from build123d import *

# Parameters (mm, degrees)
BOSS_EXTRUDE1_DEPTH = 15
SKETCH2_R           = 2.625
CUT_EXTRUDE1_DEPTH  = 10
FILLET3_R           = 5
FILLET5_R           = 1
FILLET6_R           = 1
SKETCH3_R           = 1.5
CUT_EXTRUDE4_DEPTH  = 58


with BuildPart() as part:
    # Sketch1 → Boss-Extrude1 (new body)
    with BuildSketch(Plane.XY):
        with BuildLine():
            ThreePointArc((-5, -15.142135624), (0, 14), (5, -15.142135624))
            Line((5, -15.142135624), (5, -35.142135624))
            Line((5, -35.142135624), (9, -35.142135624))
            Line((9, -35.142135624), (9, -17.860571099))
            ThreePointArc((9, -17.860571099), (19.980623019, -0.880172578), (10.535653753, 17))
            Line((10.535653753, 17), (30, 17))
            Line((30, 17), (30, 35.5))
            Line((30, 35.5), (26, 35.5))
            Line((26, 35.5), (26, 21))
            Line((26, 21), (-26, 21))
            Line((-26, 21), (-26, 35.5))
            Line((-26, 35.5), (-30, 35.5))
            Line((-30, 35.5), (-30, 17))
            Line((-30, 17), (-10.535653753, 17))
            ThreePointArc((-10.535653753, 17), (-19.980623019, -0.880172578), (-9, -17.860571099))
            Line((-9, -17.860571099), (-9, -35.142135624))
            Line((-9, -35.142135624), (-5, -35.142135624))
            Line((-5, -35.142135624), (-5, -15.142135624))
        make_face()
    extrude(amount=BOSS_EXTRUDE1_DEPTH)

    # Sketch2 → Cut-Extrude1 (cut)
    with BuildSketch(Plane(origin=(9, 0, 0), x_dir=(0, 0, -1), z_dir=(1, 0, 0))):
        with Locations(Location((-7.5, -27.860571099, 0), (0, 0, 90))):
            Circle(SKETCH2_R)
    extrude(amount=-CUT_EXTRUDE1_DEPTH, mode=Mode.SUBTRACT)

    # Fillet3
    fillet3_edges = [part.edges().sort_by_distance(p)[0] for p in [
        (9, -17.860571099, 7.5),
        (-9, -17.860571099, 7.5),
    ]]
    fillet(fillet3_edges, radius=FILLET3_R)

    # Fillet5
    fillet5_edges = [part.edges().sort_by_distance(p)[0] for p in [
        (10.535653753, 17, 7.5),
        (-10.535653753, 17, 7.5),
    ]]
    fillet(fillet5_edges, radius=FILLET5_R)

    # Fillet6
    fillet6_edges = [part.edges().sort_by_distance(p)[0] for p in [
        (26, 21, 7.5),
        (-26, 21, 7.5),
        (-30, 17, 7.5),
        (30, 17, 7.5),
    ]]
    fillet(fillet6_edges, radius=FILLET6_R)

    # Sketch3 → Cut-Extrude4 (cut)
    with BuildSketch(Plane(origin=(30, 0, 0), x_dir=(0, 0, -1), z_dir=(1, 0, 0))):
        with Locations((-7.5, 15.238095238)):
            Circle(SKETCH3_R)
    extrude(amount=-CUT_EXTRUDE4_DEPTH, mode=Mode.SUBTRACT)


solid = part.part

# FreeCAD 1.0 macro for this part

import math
import FreeCAD as App
import Part
import Sketcher

V = App.Vector


def edges_at(feature, points):
    """Names of the edges that pass closest to the given points."""
    edges = feature.Shape.Edges
    near = lambda p: min(range(len(edges)), key=lambda i: edges[i].distToShape(Part.Vertex(*p))[0])
    return sorted({f"Edge{near(p) + 1}" for p in points})

doc = App.newDocument("Part")
body = doc.addObject("PartDesign::Body", "Body")

sketch1 = doc.addObject("Sketcher::SketchObject", "Sketch")
body.addObject(sketch1)
sketch1.AttachmentSupport = (doc.XY_Plane, [""])
sketch1.MapMode = "FlatFace"
sketch1.addGeometry([
    Part.ArcOfCircle(Part.Circle(V(0, -1, 0), V(0, 0, 1), 15), math.radians(-70.528779), math.radians(250.528779)),
    Part.LineSegment(V(5, -15.142136, 0), V(5, -35.142136, 0)),
    Part.LineSegment(V(5, -35.142136, 0), V(9, -35.142136, 0)),
    Part.LineSegment(V(9, -35.142136, 0), V(9, -17.860571, 0)),
    Part.ArcOfCircle(Part.Circle(V(0, 0, 0), V(0, 0, 1), 20), math.radians(-63.256316), math.radians(58.211669)),
    Part.LineSegment(V(10.535654, 17, 0), V(30, 17, 0)),
    Part.LineSegment(V(30, 17, 0), V(30, 35.5, 0)),
    Part.LineSegment(V(30, 35.5, 0), V(26, 35.5, 0)),
    Part.LineSegment(V(26, 35.5, 0), V(26, 21, 0)),
    Part.LineSegment(V(26, 21, 0), V(-26, 21, 0)),
    Part.LineSegment(V(-26, 21, 0), V(-26, 35.5, 0)),
    Part.LineSegment(V(-26, 35.5, 0), V(-30, 35.5, 0)),
    Part.LineSegment(V(-30, 35.5, 0), V(-30, 17, 0)),
    Part.LineSegment(V(-30, 17, 0), V(-10.535654, 17, 0)),
    Part.ArcOfCircle(Part.Circle(V(0, 0, 0), V(0, 0, 1), 20), math.radians(121.788331), math.radians(243.256316)),
    Part.LineSegment(V(-9, -17.860571, 0), V(-9, -35.142136, 0)),
    Part.LineSegment(V(-9, -35.142136, 0), V(-5, -35.142136, 0)),
    Part.LineSegment(V(-5, -35.142136, 0), V(-5, -15.142136, 0)),
], False)
sketch1.addConstraint([
    Sketcher.Constraint("Coincident", 0, 1, 1, 1),
    Sketcher.Constraint("Coincident", 1, 2, 2, 1),
    Sketcher.Constraint("Coincident", 2, 2, 3, 1),
    Sketcher.Constraint("Coincident", 3, 2, 4, 1),
    Sketcher.Constraint("Coincident", 4, 2, 5, 1),
    Sketcher.Constraint("Coincident", 5, 2, 6, 1),
    Sketcher.Constraint("Coincident", 6, 2, 7, 1),
    Sketcher.Constraint("Coincident", 7, 2, 8, 1),
    Sketcher.Constraint("Coincident", 8, 2, 9, 1),
    Sketcher.Constraint("Coincident", 9, 2, 10, 1),
    Sketcher.Constraint("Coincident", 10, 2, 11, 1),
    Sketcher.Constraint("Coincident", 11, 2, 12, 1),
    Sketcher.Constraint("Coincident", 12, 2, 13, 1),
    Sketcher.Constraint("Coincident", 13, 2, 14, 1),
    Sketcher.Constraint("Coincident", 14, 2, 15, 1),
    Sketcher.Constraint("Coincident", 15, 2, 16, 1),
    Sketcher.Constraint("Coincident", 16, 2, 17, 1),
    Sketcher.Constraint("Coincident", 17, 2, 0, 2),
    Sketcher.Constraint("Vertical", 1),
    Sketcher.Constraint("Horizontal", 2),
    Sketcher.Constraint("Vertical", 3),
    Sketcher.Constraint("Horizontal", 5),
    Sketcher.Constraint("Vertical", 6),
    Sketcher.Constraint("Horizontal", 7),
    Sketcher.Constraint("Vertical", 8),
    Sketcher.Constraint("Horizontal", 9),
    Sketcher.Constraint("Vertical", 10),
    Sketcher.Constraint("Horizontal", 11),
    Sketcher.Constraint("Vertical", 12),
    Sketcher.Constraint("Horizontal", 13),
    Sketcher.Constraint("Vertical", 15),
    Sketcher.Constraint("Horizontal", 16),
    Sketcher.Constraint("Vertical", 17),
    Sketcher.Constraint("Coincident", 4, 3, -1, 1),
    Sketcher.Constraint("Coincident", 14, 3, -1, 1),
    Sketcher.Constraint("Equal", 4, 14),
    Sketcher.Constraint("Symmetric", 7, 2, 10, 2, -2),
    Sketcher.Constraint("Symmetric", 5, 2, 12, 2, -2),
    Sketcher.Constraint("Symmetric", 2, 2, 15, 2, -2),
    Sketcher.Constraint("Symmetric", 0, 1, 17, 2, -2),
    Sketcher.Constraint("Equal", 2, 7),
    Sketcher.Constraint("Radius", 0, 15.0),
    Sketcher.Constraint("Radius", 4, 20.0),
    Sketcher.Constraint("DistanceX", 2, 1, 2, 2, 4.0),
    Sketcher.Constraint("DistanceX", 9, 2, 9, 1, 52.0),
    Sketcher.Constraint("DistanceY", 1, 2, 1, 1, 20.0),
    Sketcher.Constraint("DistanceY", 6, 1, 6, 2, 18.5),
    Sketcher.Constraint("DistanceY", 8, 2, 8, 1, 14.5),
    Sketcher.Constraint("DistanceY", 0, 3, -1, 1, 1.0),
    Sketcher.Constraint("DistanceX", -1, 1, 0, 1, 5.0),
    Sketcher.Constraint("DistanceY", -1, 1, 4, 2, 17.0),
])
pad1 = doc.addObject("PartDesign::Pad", "Pad")
body.addObject(pad1)
pad1.Profile = sketch1
pad1.Length = 15

sketch2 = doc.addObject("Sketcher::SketchObject", "Sketch001")
body.addObject(sketch2)
sketch2.AttachmentSupport = (doc.YZ_Plane, [""])
sketch2.MapMode = "FlatFace"
sketch2.AttachmentOffset = App.Placement(V(0, 0, 9), App.Rotation())
sketch2.addGeometry(Part.Circle(V(-27.860571, 7.5, 0), V(0, 0, 1), 2.625), False)
sketch2.addConstraint([
    Sketcher.Constraint("Diameter", 0, 5.25),
    Sketcher.Constraint("DistanceY", -1, 1, 0, 3, 7.5),
    Sketcher.Constraint("DistanceX", 0, 3, -1, 1, 27.860571),
])
pocket1 = doc.addObject("PartDesign::Pocket", "Pocket")
body.addObject(pocket1)
pocket1.Profile = sketch2
pocket1.Length = 10
doc.recompute()

fillet = doc.addObject("PartDesign::Fillet", "Fillet")
body.addObject(fillet)
fillet.Base = (pocket1, edges_at(pocket1, [(9, -17.861, 7.5), (-9, -17.861, 7.5)]))
fillet.Radius = 5
doc.recompute()

fillet2 = doc.addObject("PartDesign::Fillet", "Fillet001")
body.addObject(fillet2)
fillet2.Base = (fillet, edges_at(fillet, [(10.536, 17, 7.5), (-10.536, 17, 7.5)]))
fillet2.Radius = 1
doc.recompute()

fillet3 = doc.addObject("PartDesign::Fillet", "Fillet002")
body.addObject(fillet3)
fillet3.Base = (fillet2, edges_at(fillet2, [
    (26, 21, 7.5),
    (-26, 21, 7.5),
    (-30, 17, 7.5),
    (30, 17, 7.5),
]))
fillet3.Radius = 1

sketch3 = doc.addObject("Sketcher::SketchObject", "Sketch002")
body.addObject(sketch3)
sketch3.AttachmentSupport = (doc.YZ_Plane, [""])
sketch3.MapMode = "FlatFace"
sketch3.AttachmentOffset = App.Placement(V(0, 0, 30), App.Rotation())
sketch3.addGeometry(Part.Circle(V(15.238095, 7.5, 0), V(0, 0, 1), 1.5), False)
sketch3.addConstraint([
    Sketcher.Constraint("Diameter", 0, 3.0),
    Sketcher.Constraint("DistanceY", -1, 1, 0, 3, 7.5),
    Sketcher.Constraint("DistanceX", -1, 1, 0, 3, 15.238095),
])
pocket2 = doc.addObject("PartDesign::Pocket", "Pocket001")
body.addObject(pocket2)
pocket2.Profile = sketch3
pocket2.Length = 58

doc.recompute()
